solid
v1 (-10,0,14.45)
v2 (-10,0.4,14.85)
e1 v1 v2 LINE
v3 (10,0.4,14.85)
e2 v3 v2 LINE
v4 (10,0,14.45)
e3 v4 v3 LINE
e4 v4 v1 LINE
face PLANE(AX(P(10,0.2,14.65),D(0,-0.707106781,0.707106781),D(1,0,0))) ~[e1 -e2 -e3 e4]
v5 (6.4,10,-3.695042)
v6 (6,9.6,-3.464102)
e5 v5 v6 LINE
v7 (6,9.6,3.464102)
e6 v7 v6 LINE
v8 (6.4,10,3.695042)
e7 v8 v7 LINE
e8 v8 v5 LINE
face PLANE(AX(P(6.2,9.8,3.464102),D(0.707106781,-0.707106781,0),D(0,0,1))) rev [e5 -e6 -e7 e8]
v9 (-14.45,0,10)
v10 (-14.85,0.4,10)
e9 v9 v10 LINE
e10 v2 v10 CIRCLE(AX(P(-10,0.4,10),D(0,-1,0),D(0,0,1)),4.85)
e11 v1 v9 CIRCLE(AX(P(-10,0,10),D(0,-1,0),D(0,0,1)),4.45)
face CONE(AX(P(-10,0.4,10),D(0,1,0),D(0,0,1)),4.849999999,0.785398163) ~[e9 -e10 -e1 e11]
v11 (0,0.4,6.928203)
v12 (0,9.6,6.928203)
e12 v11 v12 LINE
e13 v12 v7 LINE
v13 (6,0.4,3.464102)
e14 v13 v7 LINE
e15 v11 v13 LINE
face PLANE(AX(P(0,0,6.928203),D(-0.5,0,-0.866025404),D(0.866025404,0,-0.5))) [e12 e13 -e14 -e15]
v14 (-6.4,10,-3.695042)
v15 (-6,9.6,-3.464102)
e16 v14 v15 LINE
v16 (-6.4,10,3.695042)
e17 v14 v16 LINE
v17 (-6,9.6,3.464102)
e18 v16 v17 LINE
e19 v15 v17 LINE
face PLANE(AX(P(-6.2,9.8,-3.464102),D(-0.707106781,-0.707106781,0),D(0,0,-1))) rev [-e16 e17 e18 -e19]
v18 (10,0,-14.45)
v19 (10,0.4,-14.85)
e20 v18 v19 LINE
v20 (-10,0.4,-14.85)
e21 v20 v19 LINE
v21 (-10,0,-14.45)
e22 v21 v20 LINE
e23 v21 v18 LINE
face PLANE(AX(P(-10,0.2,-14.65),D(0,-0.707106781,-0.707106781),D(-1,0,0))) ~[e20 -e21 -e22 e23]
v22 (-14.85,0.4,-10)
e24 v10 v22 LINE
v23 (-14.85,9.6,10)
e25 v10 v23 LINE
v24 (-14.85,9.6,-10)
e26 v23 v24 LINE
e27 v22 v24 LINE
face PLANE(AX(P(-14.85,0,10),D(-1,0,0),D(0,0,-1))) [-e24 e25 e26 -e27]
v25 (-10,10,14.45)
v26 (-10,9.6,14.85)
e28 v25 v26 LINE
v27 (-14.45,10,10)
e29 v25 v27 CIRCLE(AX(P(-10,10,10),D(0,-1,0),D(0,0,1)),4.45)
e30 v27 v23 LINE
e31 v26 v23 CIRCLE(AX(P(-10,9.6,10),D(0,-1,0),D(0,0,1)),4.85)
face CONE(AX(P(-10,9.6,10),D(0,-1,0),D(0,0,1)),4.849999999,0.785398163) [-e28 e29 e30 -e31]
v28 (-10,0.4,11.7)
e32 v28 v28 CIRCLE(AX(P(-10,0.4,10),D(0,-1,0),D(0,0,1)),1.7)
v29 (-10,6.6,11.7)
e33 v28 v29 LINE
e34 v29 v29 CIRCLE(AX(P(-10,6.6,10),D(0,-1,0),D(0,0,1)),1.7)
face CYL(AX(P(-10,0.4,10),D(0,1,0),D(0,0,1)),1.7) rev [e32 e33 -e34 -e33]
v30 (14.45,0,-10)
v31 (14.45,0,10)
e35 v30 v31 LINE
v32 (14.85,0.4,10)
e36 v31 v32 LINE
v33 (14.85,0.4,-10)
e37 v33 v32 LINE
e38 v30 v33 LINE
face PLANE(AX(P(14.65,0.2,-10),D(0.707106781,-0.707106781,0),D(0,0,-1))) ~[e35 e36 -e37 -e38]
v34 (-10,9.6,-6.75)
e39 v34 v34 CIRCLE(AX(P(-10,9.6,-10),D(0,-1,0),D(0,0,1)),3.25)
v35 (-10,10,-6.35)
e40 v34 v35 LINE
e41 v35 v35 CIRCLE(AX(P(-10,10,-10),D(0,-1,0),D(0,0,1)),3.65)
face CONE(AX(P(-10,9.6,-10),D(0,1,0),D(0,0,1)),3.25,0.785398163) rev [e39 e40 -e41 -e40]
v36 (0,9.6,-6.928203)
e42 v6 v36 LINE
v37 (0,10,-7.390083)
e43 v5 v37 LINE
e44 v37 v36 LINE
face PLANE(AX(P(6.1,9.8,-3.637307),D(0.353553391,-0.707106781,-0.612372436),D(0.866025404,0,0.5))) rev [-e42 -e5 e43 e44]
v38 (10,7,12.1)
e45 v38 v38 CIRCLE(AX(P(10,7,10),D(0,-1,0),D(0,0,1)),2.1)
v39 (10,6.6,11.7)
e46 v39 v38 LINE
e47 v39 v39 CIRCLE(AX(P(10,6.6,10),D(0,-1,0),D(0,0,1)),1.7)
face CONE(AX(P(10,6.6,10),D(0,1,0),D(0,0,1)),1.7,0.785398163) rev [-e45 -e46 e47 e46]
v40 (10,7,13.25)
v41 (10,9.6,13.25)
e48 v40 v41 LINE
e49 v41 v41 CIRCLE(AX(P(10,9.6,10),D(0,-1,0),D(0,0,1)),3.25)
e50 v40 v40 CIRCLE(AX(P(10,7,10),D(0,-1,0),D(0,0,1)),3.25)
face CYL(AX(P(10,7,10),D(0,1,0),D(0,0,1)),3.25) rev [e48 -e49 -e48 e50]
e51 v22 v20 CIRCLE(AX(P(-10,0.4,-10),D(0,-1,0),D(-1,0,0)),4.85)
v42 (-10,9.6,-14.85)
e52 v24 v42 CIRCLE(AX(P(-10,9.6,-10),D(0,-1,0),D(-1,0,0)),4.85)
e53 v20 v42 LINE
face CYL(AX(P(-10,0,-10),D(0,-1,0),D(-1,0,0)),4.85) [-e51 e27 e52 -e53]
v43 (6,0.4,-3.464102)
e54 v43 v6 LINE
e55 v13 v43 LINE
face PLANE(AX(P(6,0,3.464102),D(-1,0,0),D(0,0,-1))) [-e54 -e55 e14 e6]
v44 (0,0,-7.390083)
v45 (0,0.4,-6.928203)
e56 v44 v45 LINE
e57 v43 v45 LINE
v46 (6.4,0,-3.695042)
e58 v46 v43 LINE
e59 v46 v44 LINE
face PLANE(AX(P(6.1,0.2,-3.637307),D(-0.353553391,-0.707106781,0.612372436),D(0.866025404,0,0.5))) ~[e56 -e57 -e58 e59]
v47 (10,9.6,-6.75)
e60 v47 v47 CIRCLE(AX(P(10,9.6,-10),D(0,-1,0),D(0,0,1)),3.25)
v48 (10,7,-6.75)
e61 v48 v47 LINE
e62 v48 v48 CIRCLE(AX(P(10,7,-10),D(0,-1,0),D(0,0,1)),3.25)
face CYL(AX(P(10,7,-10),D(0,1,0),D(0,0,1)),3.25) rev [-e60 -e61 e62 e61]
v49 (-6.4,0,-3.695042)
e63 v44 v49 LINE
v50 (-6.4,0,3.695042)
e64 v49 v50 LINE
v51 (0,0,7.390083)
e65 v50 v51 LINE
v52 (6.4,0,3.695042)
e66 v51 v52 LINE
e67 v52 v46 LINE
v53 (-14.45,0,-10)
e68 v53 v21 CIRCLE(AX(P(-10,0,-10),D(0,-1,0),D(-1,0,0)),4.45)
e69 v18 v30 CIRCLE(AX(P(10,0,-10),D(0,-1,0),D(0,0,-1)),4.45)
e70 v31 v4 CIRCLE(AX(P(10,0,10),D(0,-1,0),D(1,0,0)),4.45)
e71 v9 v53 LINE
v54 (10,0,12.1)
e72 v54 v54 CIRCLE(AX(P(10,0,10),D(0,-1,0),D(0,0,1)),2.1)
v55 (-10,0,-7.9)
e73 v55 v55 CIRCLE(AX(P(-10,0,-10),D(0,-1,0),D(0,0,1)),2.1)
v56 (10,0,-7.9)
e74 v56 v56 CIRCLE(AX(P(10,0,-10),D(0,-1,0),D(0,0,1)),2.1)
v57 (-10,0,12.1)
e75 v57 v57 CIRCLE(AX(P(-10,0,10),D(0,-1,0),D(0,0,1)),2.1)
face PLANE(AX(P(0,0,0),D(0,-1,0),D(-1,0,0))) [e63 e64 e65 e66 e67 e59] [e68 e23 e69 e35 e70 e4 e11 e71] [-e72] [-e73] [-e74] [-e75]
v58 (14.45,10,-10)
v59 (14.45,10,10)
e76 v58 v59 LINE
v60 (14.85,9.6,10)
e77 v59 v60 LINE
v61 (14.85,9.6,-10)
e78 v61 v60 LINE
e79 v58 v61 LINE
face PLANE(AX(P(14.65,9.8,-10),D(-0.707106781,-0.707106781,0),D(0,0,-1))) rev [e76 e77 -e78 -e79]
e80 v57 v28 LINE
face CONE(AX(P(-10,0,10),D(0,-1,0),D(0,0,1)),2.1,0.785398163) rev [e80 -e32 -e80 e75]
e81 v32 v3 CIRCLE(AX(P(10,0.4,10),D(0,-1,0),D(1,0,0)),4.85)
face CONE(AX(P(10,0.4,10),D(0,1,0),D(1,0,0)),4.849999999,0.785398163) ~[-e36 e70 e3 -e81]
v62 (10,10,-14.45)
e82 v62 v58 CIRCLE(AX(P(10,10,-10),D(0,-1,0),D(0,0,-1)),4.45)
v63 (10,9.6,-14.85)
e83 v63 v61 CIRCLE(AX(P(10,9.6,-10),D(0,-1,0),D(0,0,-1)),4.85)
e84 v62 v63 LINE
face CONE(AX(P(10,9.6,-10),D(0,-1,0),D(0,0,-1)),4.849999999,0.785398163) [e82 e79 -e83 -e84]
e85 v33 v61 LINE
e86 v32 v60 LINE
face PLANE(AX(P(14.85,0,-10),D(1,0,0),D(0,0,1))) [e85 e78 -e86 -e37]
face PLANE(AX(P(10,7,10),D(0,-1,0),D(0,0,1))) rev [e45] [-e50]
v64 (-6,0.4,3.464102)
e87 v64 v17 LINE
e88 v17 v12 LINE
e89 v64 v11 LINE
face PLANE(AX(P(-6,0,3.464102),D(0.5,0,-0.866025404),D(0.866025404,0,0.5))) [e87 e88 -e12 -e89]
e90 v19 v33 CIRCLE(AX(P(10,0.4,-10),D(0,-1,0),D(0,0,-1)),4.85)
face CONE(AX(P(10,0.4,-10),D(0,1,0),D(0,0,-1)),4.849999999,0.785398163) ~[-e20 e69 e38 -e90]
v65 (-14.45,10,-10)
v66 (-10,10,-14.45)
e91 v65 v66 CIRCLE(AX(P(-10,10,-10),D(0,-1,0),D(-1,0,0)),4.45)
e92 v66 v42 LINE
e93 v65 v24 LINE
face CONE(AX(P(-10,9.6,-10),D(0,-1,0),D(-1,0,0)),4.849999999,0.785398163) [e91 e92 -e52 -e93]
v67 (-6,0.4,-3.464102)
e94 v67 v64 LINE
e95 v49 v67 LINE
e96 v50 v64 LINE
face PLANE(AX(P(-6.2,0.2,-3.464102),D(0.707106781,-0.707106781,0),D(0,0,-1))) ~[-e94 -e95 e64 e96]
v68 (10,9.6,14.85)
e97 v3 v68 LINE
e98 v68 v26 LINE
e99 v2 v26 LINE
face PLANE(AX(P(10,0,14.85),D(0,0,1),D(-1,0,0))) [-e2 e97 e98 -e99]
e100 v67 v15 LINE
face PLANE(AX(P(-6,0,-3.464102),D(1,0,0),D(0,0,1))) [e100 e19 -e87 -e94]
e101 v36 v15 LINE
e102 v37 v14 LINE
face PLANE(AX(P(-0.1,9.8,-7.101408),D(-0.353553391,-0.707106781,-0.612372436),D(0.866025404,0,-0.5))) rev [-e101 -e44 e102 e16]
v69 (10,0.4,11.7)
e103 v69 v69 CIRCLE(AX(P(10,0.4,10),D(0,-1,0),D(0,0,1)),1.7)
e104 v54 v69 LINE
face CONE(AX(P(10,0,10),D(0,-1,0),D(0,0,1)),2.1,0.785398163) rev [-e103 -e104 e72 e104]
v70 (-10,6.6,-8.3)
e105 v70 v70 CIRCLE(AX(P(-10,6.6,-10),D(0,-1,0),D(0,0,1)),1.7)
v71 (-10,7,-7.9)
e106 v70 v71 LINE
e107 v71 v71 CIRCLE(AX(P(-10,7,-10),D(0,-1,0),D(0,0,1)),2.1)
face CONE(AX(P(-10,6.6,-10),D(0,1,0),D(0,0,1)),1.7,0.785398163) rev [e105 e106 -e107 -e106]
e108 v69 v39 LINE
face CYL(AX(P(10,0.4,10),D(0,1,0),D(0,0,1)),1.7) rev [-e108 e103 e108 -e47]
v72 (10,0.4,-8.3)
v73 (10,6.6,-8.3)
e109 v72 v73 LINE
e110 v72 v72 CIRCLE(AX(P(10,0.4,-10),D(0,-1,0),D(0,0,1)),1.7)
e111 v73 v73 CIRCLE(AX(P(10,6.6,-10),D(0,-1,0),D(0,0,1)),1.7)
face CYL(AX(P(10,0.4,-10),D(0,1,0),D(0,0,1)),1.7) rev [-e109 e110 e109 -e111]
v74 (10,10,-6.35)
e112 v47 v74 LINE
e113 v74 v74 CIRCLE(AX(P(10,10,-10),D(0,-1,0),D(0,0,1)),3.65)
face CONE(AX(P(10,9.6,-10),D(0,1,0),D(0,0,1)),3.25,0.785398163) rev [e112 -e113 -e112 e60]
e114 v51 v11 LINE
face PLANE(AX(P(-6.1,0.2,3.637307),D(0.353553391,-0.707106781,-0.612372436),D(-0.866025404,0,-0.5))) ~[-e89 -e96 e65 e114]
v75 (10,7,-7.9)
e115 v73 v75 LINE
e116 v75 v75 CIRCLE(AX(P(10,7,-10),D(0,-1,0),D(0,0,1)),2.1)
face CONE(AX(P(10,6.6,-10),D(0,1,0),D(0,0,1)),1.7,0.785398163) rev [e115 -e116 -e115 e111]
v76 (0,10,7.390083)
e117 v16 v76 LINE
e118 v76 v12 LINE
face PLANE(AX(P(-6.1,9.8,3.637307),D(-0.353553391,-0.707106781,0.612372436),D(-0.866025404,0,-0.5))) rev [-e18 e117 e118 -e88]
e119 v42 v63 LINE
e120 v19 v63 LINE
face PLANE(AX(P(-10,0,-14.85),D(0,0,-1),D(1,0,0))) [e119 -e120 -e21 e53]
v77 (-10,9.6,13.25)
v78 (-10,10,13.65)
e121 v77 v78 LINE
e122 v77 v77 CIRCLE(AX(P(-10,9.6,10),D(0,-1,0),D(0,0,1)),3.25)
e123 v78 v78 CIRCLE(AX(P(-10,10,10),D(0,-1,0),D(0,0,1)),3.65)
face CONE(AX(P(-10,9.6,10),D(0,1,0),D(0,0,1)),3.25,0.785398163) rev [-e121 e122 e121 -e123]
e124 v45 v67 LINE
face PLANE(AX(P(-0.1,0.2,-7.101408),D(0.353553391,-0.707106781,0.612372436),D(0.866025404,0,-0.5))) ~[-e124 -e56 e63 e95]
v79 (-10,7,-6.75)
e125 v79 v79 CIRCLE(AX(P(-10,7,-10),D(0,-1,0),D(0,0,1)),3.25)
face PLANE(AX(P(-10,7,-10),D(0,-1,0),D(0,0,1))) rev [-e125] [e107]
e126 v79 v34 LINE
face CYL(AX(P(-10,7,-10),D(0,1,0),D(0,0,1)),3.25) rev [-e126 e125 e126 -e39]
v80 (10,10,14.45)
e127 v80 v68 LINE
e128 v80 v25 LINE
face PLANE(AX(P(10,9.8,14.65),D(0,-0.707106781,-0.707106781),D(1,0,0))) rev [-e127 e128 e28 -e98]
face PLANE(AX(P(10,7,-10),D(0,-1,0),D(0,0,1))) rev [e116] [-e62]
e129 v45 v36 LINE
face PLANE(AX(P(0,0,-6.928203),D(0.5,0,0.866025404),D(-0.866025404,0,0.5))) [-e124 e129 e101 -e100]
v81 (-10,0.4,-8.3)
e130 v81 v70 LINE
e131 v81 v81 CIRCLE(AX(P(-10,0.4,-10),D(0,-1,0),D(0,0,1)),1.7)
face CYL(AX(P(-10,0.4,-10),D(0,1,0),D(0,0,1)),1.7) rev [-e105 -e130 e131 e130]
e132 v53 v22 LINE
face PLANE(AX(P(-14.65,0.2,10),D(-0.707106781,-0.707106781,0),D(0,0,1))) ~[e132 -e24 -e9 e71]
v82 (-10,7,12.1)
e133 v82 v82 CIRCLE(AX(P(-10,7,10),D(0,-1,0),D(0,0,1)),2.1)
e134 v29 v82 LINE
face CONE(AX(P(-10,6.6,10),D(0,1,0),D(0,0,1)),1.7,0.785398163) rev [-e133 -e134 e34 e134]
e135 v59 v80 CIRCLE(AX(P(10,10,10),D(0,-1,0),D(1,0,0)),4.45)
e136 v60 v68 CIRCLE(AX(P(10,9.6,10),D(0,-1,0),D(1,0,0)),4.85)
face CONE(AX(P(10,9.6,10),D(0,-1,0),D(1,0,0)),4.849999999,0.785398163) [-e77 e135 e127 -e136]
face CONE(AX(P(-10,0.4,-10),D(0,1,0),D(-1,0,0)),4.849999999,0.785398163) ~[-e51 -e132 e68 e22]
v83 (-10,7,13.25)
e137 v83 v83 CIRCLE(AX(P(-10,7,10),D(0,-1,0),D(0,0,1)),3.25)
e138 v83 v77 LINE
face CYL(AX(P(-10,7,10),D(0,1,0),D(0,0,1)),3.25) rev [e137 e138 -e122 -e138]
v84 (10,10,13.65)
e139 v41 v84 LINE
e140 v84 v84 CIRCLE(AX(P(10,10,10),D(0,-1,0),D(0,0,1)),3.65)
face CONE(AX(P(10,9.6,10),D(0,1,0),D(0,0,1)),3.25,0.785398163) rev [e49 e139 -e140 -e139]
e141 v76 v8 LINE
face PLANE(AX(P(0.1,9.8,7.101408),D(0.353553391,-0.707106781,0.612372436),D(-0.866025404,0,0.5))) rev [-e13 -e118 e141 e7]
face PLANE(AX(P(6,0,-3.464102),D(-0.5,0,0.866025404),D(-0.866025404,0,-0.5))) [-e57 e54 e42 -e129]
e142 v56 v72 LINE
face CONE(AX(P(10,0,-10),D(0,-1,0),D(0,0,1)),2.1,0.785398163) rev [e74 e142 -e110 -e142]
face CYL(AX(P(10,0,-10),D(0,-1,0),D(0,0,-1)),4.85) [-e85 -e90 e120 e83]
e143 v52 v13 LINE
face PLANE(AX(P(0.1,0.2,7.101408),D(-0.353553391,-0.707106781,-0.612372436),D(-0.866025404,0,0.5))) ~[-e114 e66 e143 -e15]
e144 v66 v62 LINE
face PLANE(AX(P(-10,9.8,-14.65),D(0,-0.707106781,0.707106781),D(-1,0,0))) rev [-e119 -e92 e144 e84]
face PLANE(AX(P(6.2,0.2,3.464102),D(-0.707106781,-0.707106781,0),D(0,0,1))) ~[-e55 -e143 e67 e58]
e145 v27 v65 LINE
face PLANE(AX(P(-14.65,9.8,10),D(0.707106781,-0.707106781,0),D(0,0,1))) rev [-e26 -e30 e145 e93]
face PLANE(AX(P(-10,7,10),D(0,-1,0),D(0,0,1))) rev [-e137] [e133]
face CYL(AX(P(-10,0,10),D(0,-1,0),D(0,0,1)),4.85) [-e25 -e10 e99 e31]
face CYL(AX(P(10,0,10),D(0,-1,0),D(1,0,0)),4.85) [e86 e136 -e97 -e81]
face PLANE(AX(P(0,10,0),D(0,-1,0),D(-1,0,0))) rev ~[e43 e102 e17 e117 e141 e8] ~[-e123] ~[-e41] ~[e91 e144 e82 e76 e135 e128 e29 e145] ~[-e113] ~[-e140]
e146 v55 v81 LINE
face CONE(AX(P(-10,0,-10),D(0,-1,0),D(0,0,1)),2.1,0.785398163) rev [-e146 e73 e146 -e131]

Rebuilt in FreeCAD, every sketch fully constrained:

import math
import FreeCAD as App
import Part
import Sketcher
Q = App.Units.Quantity


def edges_at(feature, points):
    """Names of the edges that pass closest to the given points."""
    edges = feature.Shape.Edges
    near = lambda p: min(range(len(edges)), key=lambda i: edges[i].distToShape(Part.Vertex(*p))[0])
    return sorted({f"Edge{near(p) + 1}" for p in points})

doc = App.newDocument("Part")
body = doc.addObject("PartDesign::Body", "Body")

sketch1 = doc.addObject("Sketcher::SketchObject", "Sketch")
body.addObject(sketch1)
sketch1.AttachmentSupport = (doc.XZ_Plane, [""])
sketch1.MapMode = "FlatFace"
sketch1.addGeometry([
    Part.LineSegment(App.Vector(-14.8, -10, 0), App.Vector(-14.8, 10, 0)),
    Part.ArcOfCircle(Part.Circle(App.Vector(-10, 10, 0), App.Vector(0, 0, 1), 4.8), math.radians(90), math.radians(180)),
    Part.LineSegment(App.Vector(-10, 14.8, 0), App.Vector(10, 14.8, 0)),
    Part.ArcOfCircle(Part.Circle(App.Vector(10, 10, 0), App.Vector(0, 0, 1), 4.8), math.radians(0), math.radians(90)),
    Part.LineSegment(App.Vector(14.8, 10, 0), App.Vector(14.8, -10, 0)),
    Part.ArcOfCircle(Part.Circle(App.Vector(10, -10, 0), App.Vector(0, 0, 1), 4.8), math.radians(-90), math.radians(0)),
    Part.LineSegment(App.Vector(10, -14.8, 0), App.Vector(-10, -14.8, 0)),
    Part.ArcOfCircle(Part.Circle(App.Vector(-10, -10, 0), App.Vector(0, 0, 1), 4.8), math.radians(180), math.radians(270)),
    Part.LineSegment(App.Vector(-6, -3.5, 0), App.Vector(0, -6.9, 0)),
    Part.LineSegment(App.Vector(0, -6.9, 0), App.Vector(6, -3.5, 0)),
    Part.LineSegment(App.Vector(6, -3.5, 0), App.Vector(6, 3.5, 0)),
    Part.LineSegment(App.Vector(6, 3.5, 0), App.Vector(0, 6.9, 0)),
    Part.LineSegment(App.Vector(0, 6.9, 0), App.Vector(-6, 3.5, 0)),
    Part.LineSegment(App.Vector(-6, 3.5, 0), App.Vector(-6, -3.5, 0)),
], False)
sketch1.addConstraint([
    Sketcher.Constraint("Tangent", 0, 2, 1, 2),
    Sketcher.Constraint("Tangent", 1, 1, 2, 1),
    Sketcher.Constraint("Tangent", 2, 2, 3, 2),
    Sketcher.Constraint("Tangent", 3, 1, 4, 1),
    Sketcher.Constraint("Tangent", 4, 2, 5, 2),
    Sketcher.Constraint("Tangent", 5, 1, 6, 1),
    Sketcher.Constraint("Tangent", 6, 2, 7, 2),
    Sketcher.Constraint("Tangent", 7, 1, 0, 1),
    Sketcher.Constraint("Coincident", 8, 2, 9, 1),
    Sketcher.Constraint("Coincident", 9, 2, 10, 1),
    Sketcher.Constraint("Coincident", 10, 2, 11, 1),
    Sketcher.Constraint("Coincident", 11, 2, 12, 1),
    Sketcher.Constraint("Coincident", 12, 2, 13, 1),
    Sketcher.Constraint("Coincident", 13, 2, 8, 1),
    Sketcher.Constraint("Vertical", 0),
    Sketcher.Constraint("Horizontal", 2),
    Sketcher.Constraint("Vertical", 4),
    Sketcher.Constraint("Horizontal", 6),
    Sketcher.Constraint("Vertical", 10),
    Sketcher.Constraint("Vertical", 13),
    Sketcher.Constraint("Equal", 1, 3),
    Sketcher.Constraint("Equal", 3, 5),
    Sketcher.Constraint("Equal", 5, 7),
    Sketcher.Constraint("Symmetric", 1, 3, 5, 3, -1, 1),
    Sketcher.Constraint("Symmetric", 8, 2, 11, 2, -1, 1),
    Sketcher.Constraint("Symmetric", 9, 2, 12, 2, -1, 1),
    Sketcher.Constraint("PointOnObject", 8, 2, -2),
    Sketcher.Constraint("Parallel", 8, 11),
    Sketcher.Constraint("Horizontal", 10, 2, 12, 2),
    Sketcher.Constraint("Equal", 6, 0),
    Sketcher.Constraint("DistanceX", 2, 1, 2, 2, Q("20 mm")),
    Sketcher.Constraint("Angle", 8, Q("-30 deg")),
    Sketcher.Constraint("Radius", 1, Q("4.85 mm")),
    Sketcher.Constraint("DistanceX", -1, 1, 9, 2, Q("6 mm")),
    Sketcher.Constraint("DistanceY", 9, 2, -1, 1, Q("3.464102 mm")),
])
pad1 = doc.addObject("PartDesign::Pad", "Pad")
body.addObject(pad1)
pad1.Profile = sketch1
pad1.Length = 10
pad1.Reversed = True

sketch2 = doc.addObject("Sketcher::SketchObject", "Sketch001")
body.addObject(sketch2)
sketch2.AttachmentSupport = (doc.YZ_Plane, [""])
sketch2.MapMode = "FlatFace"
sketch2.AttachmentOffset = App.Placement(App.Vector(0, 0, -10), App.Rotation())
sketch2.addGeometry([
    Part.LineSegment(App.Vector(0, -10, 0), App.Vector(10, -10, 0)),
    Part.LineSegment(App.Vector(10, -10, 0), App.Vector(10, -6.3, 0)),
    Part.LineSegment(App.Vector(10, -6.3, 0), App.Vector(9.6, -6.8, 0)),
    Part.LineSegment(App.Vector(9.6, -6.8, 0), App.Vector(7, -6.8, 0)),
    Part.LineSegment(App.Vector(7, -6.8, 0), App.Vector(7, -7.9, 0)),
    Part.LineSegment(App.Vector(7, -7.9, 0), App.Vector(6.6, -8.3, 0)),
    Part.LineSegment(App.Vector(6.6, -8.3, 0), App.Vector(0.4, -8.3, 0)),
    Part.LineSegment(App.Vector(0.4, -8.3, 0), App.Vector(0, -7.9, 0)),
    Part.LineSegment(App.Vector(0, -7.9, 0), App.Vector(0, -10, 0)),
], False)
sketch2.addGeometry(Part.LineSegment(App.Vector(10, -10, 0), App.Vector(0, -10, 0)), True)
sketch2.addConstraint([
    Sketcher.Constraint("Coincident", 0, 2, 1, 1),
    Sketcher.Constraint("Coincident", 1, 2, 2, 1),
    Sketcher.Constraint("Coincident", 2, 2, 3, 1),
    Sketcher.Constraint("Coincident", 3, 2, 4, 1),
    Sketcher.Constraint("Coincident", 4, 2, 5, 1),
    Sketcher.Constraint("Coincident", 5, 2, 6, 1),
    Sketcher.Constraint("Coincident", 6, 2, 7, 1),
    Sketcher.Constraint("Coincident", 7, 2, 8, 1),
    Sketcher.Constraint("Coincident", 8, 2, 0, 1),
    Sketcher.Constraint("Horizontal", 0),
    Sketcher.Constraint("Vertical", 1),
    Sketcher.Constraint("Horizontal", 3),
    Sketcher.Constraint("Vertical", 4),
    Sketcher.Constraint("Horizontal", 6),
    Sketcher.Constraint("Vertical", 8),
    Sketcher.Constraint("Horizontal", 9),
    Sketcher.Constraint("Coincident", 9, 1, 0, 2),
    Sketcher.Constraint("PointOnObject", 7, 2, -2),
    Sketcher.Constraint("PointOnObject", 9, 2, -2),
    Sketcher.Constraint("Parallel", 2, 5),
    Sketcher.Constraint("Perpendicular", 5, 7),
    Sketcher.Constraint("Horizontal", 4, 2, 7, 2),
    Sketcher.Constraint("Equal", 2, 5),
    Sketcher.Constraint("Equal", 5, 7),
    Sketcher.Constraint("DistanceX", 0, 1, 0, 2, Q("10 mm")),
    Sketcher.Constraint("DistanceX", 3, 2, 3, 1, Q("2.6 mm")),
    Sketcher.Constraint("DistanceX", 6, 2, 6, 1, Q("6.2 mm")),
    Sketcher.Constraint("DistanceY", 8, 2, 8, 1, Q("2.1 mm")),
    Sketcher.Constraint("DistanceY", 0, 2, -1, 1, Q("10 mm")),
    Sketcher.Constraint("DistanceY", 1, 1, 1, 2, Q("3.65 mm")),
])
groove = doc.addObject("PartDesign::Groove", "Groove")
body.addObject(groove)
groove.Profile = sketch2
groove.ReferenceAxis = (sketch2, ["Axis0"])
groove.Angle = 360
doc.recompute()

linearpattern = doc.addObject("PartDesign::LinearPattern", "LinearPattern")
body.addObject(linearpattern)
linearpattern.Originals = [groove]
linearpattern.Direction = (doc.X_Axis, [""])
linearpattern.Mode = "offset"
linearpattern.Offset = 20
linearpattern.Occurrences = 2
body.Tip = linearpattern
doc.recompute()

datumline = doc.addObject("PartDesign::Line", "DatumLine")
body.addObject(datumline)
datumline.Placement = App.Placement(App.Vector(0, 0, 0), App.Rotation(App.Vector(0, 0, 1), App.Vector(0.707106781, 0, 0.707106781)))
linearpattern2 = doc.addObject("PartDesign::LinearPattern", "LinearPattern001")
body.addObject(linearpattern2)
linearpattern2.Originals = [groove]
linearpattern2.Direction = (datumline, [""])
linearpattern2.Mode = "offset"
linearpattern2.Offset = 28.284271
linearpattern2.Occurrences = 2
body.Tip = linearpattern2
doc.recompute()

linearpattern3 = doc.addObject("PartDesign::LinearPattern", "LinearPattern002")
body.addObject(linearpattern3)
linearpattern3.Originals = [groove]
linearpattern3.Direction = (doc.Z_Axis, [""])
linearpattern3.Mode = "offset"
linearpattern3.Offset = 20
linearpattern3.Occurrences = 2
body.Tip = linearpattern3
doc.recompute()

chamfer = doc.addObject("PartDesign::Chamfer", "Chamfer")
body.addObject(chamfer)
chamfer.Base = (linearpattern3, edges_at(linearpattern3, [
    (14.85, 0, 0),
    (13.429, 0, 13.429),
    (0, 0, 14.85),
    (-13.429, 0, 13.429),
    (13.429, 10, 13.429),
    (14.85, 10, 0),
    (13.429, 10, -13.429),
    (0, 10, -14.85),
    (-3, 0, -5.196),
    (-6, 0, 0),
    (-3, 0, 5.196),
    (3, 0, 5.196),
    (6, 0, 0),
    (3, 0, -5.196),
    (-3, 10, -5.196),
    (-6, 10, 0),
    (-13.429, 10, -13.429),
    (-3, 10, 5.196),
    (3, 10, 5.196),
    (6, 10, 0),
    (3, 10, -5.196),
    (-14.85, 10, 0),
    (-13.429, 10, 13.429),
    (-14.85, 0, 0),
    (0, 10, 14.85),
    (-13.429, 0, -13.429),
    (0, 0, -14.85),
    (13.429, 0, -13.429),
]))
chamfer.Size = 0.4

doc.recompute()
